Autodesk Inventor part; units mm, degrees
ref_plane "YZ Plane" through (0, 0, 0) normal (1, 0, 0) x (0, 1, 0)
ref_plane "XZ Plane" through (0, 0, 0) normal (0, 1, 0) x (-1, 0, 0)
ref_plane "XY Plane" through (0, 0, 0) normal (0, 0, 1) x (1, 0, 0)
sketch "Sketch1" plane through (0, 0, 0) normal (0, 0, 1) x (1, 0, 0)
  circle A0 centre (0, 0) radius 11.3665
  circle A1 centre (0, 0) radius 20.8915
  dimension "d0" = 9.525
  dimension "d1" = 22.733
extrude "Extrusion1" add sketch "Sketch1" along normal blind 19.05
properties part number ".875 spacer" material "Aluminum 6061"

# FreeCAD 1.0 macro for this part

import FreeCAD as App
import Part
import Sketcher
Q = App.Units.Quantity

doc = App.newDocument("Part")
body = doc.addObject("PartDesign::Body", "Body")

# Sketch on XY plane
sketch1 = doc.addObject("Sketcher::SketchObject", "Sketch")
body.addObject(sketch1)
sketch1.AttachmentSupport = (doc.XY_Plane, [""])
sketch1.MapMode = "FlatFace"
sketch1.addGeometry([
    Part.Circle(App.Vector(0, 0, 0), App.Vector(0, 0, 1), 21),
    Part.Circle(App.Vector(0, 0, 0), App.Vector(0, 0, 1), 11),
], False)
sketch1.addConstraint([
    Sketcher.Constraint("Coincident", 0, 3, -1, 1),
    Sketcher.Constraint("Coincident", 1, 3, -1, 1),
    Sketcher.Constraint("Diameter", 1, Q("0.895 in")),
    Sketcher.Constraint("Diameter", 0, Q("1.645 in")),
])
pad1 = doc.addObject("PartDesign::Pad", "Pad")
body.addObject(pad1)
pad1.Profile = sketch1
pad1.Length = Q("0.75 in")

doc.recompute()
